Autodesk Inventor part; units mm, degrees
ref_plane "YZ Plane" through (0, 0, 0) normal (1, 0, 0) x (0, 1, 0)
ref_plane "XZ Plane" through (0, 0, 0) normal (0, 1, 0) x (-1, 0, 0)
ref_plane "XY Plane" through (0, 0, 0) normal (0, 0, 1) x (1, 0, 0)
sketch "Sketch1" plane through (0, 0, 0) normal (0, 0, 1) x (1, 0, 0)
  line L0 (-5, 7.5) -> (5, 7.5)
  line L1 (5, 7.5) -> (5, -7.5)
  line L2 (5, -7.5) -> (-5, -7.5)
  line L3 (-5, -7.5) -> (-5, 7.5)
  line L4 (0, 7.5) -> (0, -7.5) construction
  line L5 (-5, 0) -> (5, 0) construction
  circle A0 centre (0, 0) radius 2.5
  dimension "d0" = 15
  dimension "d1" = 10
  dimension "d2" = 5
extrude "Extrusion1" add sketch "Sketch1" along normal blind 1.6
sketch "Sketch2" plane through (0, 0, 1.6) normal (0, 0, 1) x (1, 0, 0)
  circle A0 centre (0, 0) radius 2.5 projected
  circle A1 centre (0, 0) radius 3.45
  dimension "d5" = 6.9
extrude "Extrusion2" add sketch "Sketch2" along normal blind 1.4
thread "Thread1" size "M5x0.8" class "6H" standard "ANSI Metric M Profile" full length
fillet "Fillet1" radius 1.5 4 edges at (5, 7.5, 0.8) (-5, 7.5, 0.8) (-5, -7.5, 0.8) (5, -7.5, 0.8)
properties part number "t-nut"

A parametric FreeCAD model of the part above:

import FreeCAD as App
import Part
import Sketcher
from FreeCAD import Vector


def edges_at(feature, points):
    """Names of the edges that pass closest to the given points."""
    edges = feature.Shape.Edges
    near = lambda p: min(range(len(edges)), key=lambda i: edges[i].distToShape(Part.Vertex(*p))[0])
    return sorted({f"Edge{near(p) + 1}" for p in points})


def add_polygon(sketch, points):
    """Adds a closed chain of lines whose ends are joined by coincident constraints."""
    first, n = sketch.GeometryCount, len(points)
    for a, b in zip(points, points[1:] + points[:1]):
        sketch.addGeometry(Part.LineSegment(App.Vector(*a, 0), App.Vector(*b, 0)), False)
    for i in range(n):
        sketch.addConstraint(Sketcher.Constraint("Coincident", first + i, 2, first + (i + 1) % n, 1))

doc = App.newDocument("Part")
body = doc.addObject("PartDesign::Body", "Body")

sketch1 = doc.addObject("Sketcher::SketchObject", "Sketch")
body.addObject(sketch1)
sketch1.AttachmentSupport = (doc.XY_Plane, [""])
sketch1.MapMode = "FlatFace"
add_polygon(sketch1, [(5, 7.5), (-5, 7.5), (-5, -7.5), (5, -7.5)])
sketch1.addGeometry(Part.Circle(Vector(0, 0, 0), Vector(0, 0, 1), 2.5), False)
sketch1.addConstraint([
    Sketcher.Constraint("Horizontal", 0),
    Sketcher.Constraint("Vertical", 1),
    Sketcher.Constraint("Horizontal", 2),
    Sketcher.Constraint("Vertical", 3),
    Sketcher.Constraint("Coincident", 4, 3, -1, 1),
    Sketcher.Constraint("Symmetric", 0, 2, 2, 2, -1, 1),
    Sketcher.Constraint("Diameter", 4, 5.0),
    Sketcher.Constraint("DistanceX", 0, 2, 0, 1, 10.0),
    Sketcher.Constraint("DistanceY", 1, 2, 1, 1, 15.0),
])
pad1 = doc.addObject("PartDesign::Pad", "Pad")
body.addObject(pad1)
pad1.Profile = sketch1
pad1.Length = 1.6

sketch2 = doc.addObject("Sketcher::SketchObject", "Sketch001")
body.addObject(sketch2)
sketch2.AttachmentSupport = (doc.XY_Plane, [""])
sketch2.MapMode = "FlatFace"
sketch2.AttachmentOffset = App.Placement(Vector(0, 0, 1.6), App.Rotation())
sketch2.addGeometry([
    Part.Circle(Vector(0, 0, 0), Vector(0, 0, 1), 3.5),
    Part.Circle(Vector(0, 0, 0), Vector(0, 0, 1), 2.5),
], False)
sketch2.addConstraint([
    Sketcher.Constraint("Coincident", 0, 3, -1, 1),
    Sketcher.Constraint("Coincident", 1, 3, -1, 1),
    Sketcher.Constraint("Diameter", 0, 6.9),
    Sketcher.Constraint("Diameter", 1, 5.0),
])
pad2 = doc.addObject("PartDesign::Pad", "Pad001")
body.addObject(pad2)
pad2.Profile = sketch2
pad2.Length = 1.4
doc.recompute()

fillet = doc.addObject("PartDesign::Fillet", "Fillet")
body.addObject(fillet)
fillet.Base = (pad2, edges_at(pad2, [
    (5, 7.5, 0.8),
    (-5, 7.5, 0.8),
    (-5, -7.5, 0.8),
    (5, -7.5, 0.8),
]))
fillet.Radius = 1.5

doc.recompute()
